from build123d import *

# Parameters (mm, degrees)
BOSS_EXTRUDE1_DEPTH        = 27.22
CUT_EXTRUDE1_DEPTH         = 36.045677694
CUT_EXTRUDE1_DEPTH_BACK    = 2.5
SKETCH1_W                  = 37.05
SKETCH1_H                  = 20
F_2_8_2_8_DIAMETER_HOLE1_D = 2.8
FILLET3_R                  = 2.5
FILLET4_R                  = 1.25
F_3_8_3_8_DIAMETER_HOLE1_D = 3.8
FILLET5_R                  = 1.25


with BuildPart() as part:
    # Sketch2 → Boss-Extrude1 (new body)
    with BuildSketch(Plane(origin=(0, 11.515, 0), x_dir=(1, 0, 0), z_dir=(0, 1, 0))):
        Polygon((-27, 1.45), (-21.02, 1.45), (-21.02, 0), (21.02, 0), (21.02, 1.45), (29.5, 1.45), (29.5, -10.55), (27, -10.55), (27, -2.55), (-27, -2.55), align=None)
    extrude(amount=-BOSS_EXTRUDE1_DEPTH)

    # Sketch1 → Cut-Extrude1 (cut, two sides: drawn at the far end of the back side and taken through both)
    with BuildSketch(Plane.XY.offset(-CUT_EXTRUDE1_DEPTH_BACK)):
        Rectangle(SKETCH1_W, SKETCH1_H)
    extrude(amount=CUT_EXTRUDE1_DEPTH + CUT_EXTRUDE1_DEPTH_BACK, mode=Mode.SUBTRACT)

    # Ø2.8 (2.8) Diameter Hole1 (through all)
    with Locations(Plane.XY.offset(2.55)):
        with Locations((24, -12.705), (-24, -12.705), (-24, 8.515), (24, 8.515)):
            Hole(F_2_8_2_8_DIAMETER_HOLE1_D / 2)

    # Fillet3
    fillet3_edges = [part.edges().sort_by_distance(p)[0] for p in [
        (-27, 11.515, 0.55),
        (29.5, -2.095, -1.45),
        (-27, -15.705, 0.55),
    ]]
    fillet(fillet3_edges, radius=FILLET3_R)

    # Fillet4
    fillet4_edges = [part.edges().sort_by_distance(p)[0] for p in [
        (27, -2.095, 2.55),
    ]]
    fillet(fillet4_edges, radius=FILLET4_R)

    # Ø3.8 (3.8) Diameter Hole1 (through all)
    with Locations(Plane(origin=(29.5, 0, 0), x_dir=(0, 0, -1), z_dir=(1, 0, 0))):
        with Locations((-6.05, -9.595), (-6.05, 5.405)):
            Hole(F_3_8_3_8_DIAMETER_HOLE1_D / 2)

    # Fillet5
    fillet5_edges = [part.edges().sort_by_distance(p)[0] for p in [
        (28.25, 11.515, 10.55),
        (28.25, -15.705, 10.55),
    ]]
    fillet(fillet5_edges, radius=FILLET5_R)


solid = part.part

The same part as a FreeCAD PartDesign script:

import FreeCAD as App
import Part
import Sketcher

V = App.Vector
Q = App.Units.Quantity


def edges_at(feature, points):
    """Names of the edges that pass closest to the given points."""
    edges = feature.Shape.Edges
    near = lambda p: min(range(len(edges)), key=lambda i: edges[i].distToShape(Part.Vertex(*p))[0])
    return sorted({f"Edge{near(p) + 1}" for p in points})


def add_polygon(sketch, points):
    """Adds a closed chain of lines whose ends are joined by coincident constraints."""
    first, n = sketch.GeometryCount, len(points)
    for a, b in zip(points, points[1:] + points[:1]):
        sketch.addGeometry(Part.LineSegment(App.Vector(*a, 0), App.Vector(*b, 0)), False)
    for i in range(n):
        sketch.addConstraint(Sketcher.Constraint("Coincident", first + i, 2, first + (i + 1) % n, 1))

doc = App.newDocument("Part")
body = doc.addObject("PartDesign::Body", "Body")

# Sketch on XZ plane
sketch1 = body.newObject("Sketcher::SketchObject", "Sketch")
sketch1.AttachmentSupport = (doc.getObject("XZ_Plane"), [""])
sketch1.MapMode = "FlatFace"
sketch1.AttachmentOffset = App.Placement(V(0, 0, -11.515), App.Rotation())
add_polygon(sketch1, [(-21, -1.4), (-27, -1.4), (-27, 2.5), (27, 2.5), (27, 10.6), (29.5, 10.6), (29.5, -1.4), (21, -1.4), (21, 0), (-21, 0)])  # lines 0-9
sketch1.addConstraint(Sketcher.Constraint("Horizontal", 0))
sketch1.addConstraint(Sketcher.Constraint("Vertical", 1))
sketch1.addConstraint(Sketcher.Constraint("Horizontal", 2))
sketch1.addConstraint(Sketcher.Constraint("Vertical", 3))
sketch1.addConstraint(Sketcher.Constraint("Horizontal", 4))
sketch1.addConstraint(Sketcher.Constraint("Vertical", 5))
sketch1.addConstraint(Sketcher.Constraint("Horizontal", 6))
sketch1.addConstraint(Sketcher.Constraint("Vertical", 7))
sketch1.addConstraint(Sketcher.Constraint("Horizontal", 8))
sketch1.addConstraint(Sketcher.Constraint("Vertical", 9))
sketch1.addConstraint(Sketcher.Constraint("Symmetric", 7, 2, 8, 2, -1, 1))
sketch1.addConstraint(Sketcher.Constraint("Horizontal", 0, 2, 5, 2))
sketch1.addConstraint(Sketcher.Constraint("DistanceX", 2, 1, 2, 2, Q("54 mm")))
sketch1.addConstraint(Sketcher.Constraint("DistanceY", 1, 1, 1, 2, Q("4 mm")))
sketch1.addConstraint(Sketcher.Constraint("DistanceY", 3, 1, 3, 2, Q("8 mm")))
sketch1.addConstraint(Sketcher.Constraint("DistanceX", 4, 1, 4, 2, Q("2.5 mm")))
sketch1.addConstraint(Sketcher.Constraint("DistanceX", 0, 2, -1, 1, Q("27 mm")))
sketch1.addConstraint(Sketcher.Constraint("DistanceX", 0, 2, 0, 1, Q("5.98 mm")))
sketch1.addConstraint(Sketcher.Constraint("DistanceY", 7, 1, 7, 2, Q("1.45 mm")))
pad1 = body.newObject("PartDesign::Pad", "Pad")
pad1.Profile = sketch1
pad1.Length = 27.22

# Sketch on XY plane
sketch2 = body.newObject("Sketcher::SketchObject", "Sketch001")
sketch2.AttachmentSupport = (doc.getObject("XY_Plane"), [""])
sketch2.MapMode = "FlatFace"
add_polygon(sketch2, [(-19, 10), (-19, -10), (19, -10), (19, 10)])  # lines 0-3
sketch2.addConstraint(Sketcher.Constraint("Vertical", 0))
sketch2.addConstraint(Sketcher.Constraint("Horizontal", 1))
sketch2.addConstraint(Sketcher.Constraint("Vertical", 2))
sketch2.addConstraint(Sketcher.Constraint("Horizontal", 3))
sketch2.addConstraint(Sketcher.Constraint("Symmetric", 0, 2, 2, 2, -1, 1))
sketch2.addConstraint(Sketcher.Constraint("DistanceY", 0, 2, 0, 1, Q("20 mm")))
sketch2.addConstraint(Sketcher.Constraint("DistanceX", 1, 1, 1, 2, Q("37.05 mm")))
pocket1 = body.newObject("PartDesign::Pocket", "Pocket")
pocket1.Profile = sketch2
pocket1.Type = "ThroughAll"
pocket1.Midplane = True

# Sketch on XY plane
sketch3 = body.newObject("Sketcher::SketchObject", "Sketch002")
sketch3.AttachmentSupport = (doc.getObject("XY_Plane"), [""])
sketch3.MapMode = "FlatFace"
sketch3.AttachmentOffset = App.Placement(V(0, 0, 2.55), App.Rotation())
sketch3.addGeometry(Part.Circle(V(24, -12.7, 0), V(0, 0, 1), 1.4), False)
sketch3.addGeometry(Part.Circle(V(-24, -12.7, 0), V(0, 0, 1), 1.4), False)
sketch3.addGeometry(Part.Circle(V(-24, 8.5, 0), V(0, 0, 1), 1.4), False)
sketch3.addGeometry(Part.Circle(V(24, 8.5, 0), V(0, 0, 1), 1.4), False)
sketch3.addConstraint(Sketcher.Constraint("Equal", 0, 1))
sketch3.addConstraint(Sketcher.Constraint("Equal", 1, 2))
sketch3.addConstraint(Sketcher.Constraint("Equal", 2, 3))
sketch3.addConstraint(Sketcher.Constraint("Symmetric", 0, 3, 1, 3, -2))
sketch3.addConstraint(Sketcher.Constraint("Symmetric", 2, 3, 3, 3, -2))
sketch3.addConstraint(Sketcher.Constraint("Vertical", 1, 3, 2, 3))
sketch3.addConstraint(Sketcher.Constraint("Diameter", 0, Q("2.8 mm")))
sketch3.addConstraint(Sketcher.Constraint("DistanceX", -1, 1, 0, 3, Q("24 mm")))
sketch3.addConstraint(Sketcher.Constraint("DistanceY", 1, 3, 2, 3, Q("21.22 mm")))
sketch3.addConstraint(Sketcher.Constraint("DistanceY", 0, 3, -1, 1, Q("12.705 mm")))
doc.recompute()
hole = body.newObject("PartDesign::Hole", "Hole")
hole.Profile = sketch3
hole.ThreadType = "None"
hole.Diameter = 2.8
hole.DepthType = "ThroughAll"
doc.recompute()

fillet = body.newObject("PartDesign::Fillet", "Fillet")
fillet.Base = (hole, edges_at(hole, [(-27, 11.515, 0.55), (29.5, -2.095, -1.45), (-27, -15.705, 0.55)]))
fillet.Radius = 2.5
doc.recompute()

fillet2 = body.newObject("PartDesign::Fillet", "Fillet001")
fillet2.Base = (fillet, edges_at(fillet, [(27, -2.095, 2.55)]))
fillet2.Radius = 1.25

# Sketch on YZ plane
sketch4 = body.newObject("Sketcher::SketchObject", "Sketch003")
sketch4.AttachmentSupport = (doc.getObject("YZ_Plane"), [""])
sketch4.MapMode = "FlatFace"
sketch4.AttachmentOffset = App.Placement(V(0, 0, 29.5), App.Rotation())
sketch4.addGeometry(Part.Circle(V(-9.6, 6, 0), V(0, 0, 1), 1.9), False)
sketch4.addGeometry(Part.Circle(V(5.4, 6, 0), V(0, 0, 1), 1.9), False)
sketch4.addConstraint(Sketcher.Constraint("Equal", 0, 1))
sketch4.addConstraint(Sketcher.Constraint("Horizontal", 0, 3, 1, 3))
sketch4.addConstraint(Sketcher.Constraint("Diameter", 0, Q("3.8 mm")))
sketch4.addConstraint(Sketcher.Constraint("DistanceX", 0, 3, 1, 3, Q("15 mm")))
sketch4.addConstraint(Sketcher.Constraint("DistanceY", -1, 1, 0, 3, Q("6.05 mm")))
sketch4.addConstraint(Sketcher.Constraint("DistanceX", 0, 3, -1, 1, Q("9.595 mm")))
doc.recompute()
hole2 = body.newObject("PartDesign::Hole", "Hole001")
hole2.Profile = sketch4
hole2.ThreadType = "None"
hole2.Diameter = 3.8
hole2.DepthType = "ThroughAll"
doc.recompute()

fillet3 = body.newObject("PartDesign::Fillet", "Fillet002")
fillet3.Base = (hole2, edges_at(hole2, [(28.25, 11.515, 10.55), (28.25, -15.705, 10.55)]))
fillet3.Radius = 1.25

doc.recompute()
